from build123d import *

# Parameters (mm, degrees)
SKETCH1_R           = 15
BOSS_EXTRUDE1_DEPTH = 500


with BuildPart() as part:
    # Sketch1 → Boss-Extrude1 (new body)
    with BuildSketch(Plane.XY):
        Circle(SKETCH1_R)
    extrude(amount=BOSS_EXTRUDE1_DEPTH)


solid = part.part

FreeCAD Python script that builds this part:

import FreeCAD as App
import Part
import Sketcher
from FreeCAD import Vector
Q = App.Units.Quantity

doc = App.newDocument("Part")
params = doc.addObject("Spreadsheet::Sheet", "Params")
for row, (alias, value) in enumerate([
    ("sketch1_diameter", "30 mm"),
    ("pad1_length", "500 mm"),
], start=1):
    params.set(f"A{row}", alias)
    params.set(f"B{row}", "=" + value)
    params.setAlias(f"B{row}", alias)

body = doc.addObject("PartDesign::Body", "Body")

sketch1 = body.newObject("Sketcher::SketchObject", "Sketch")
sketch1.AttachmentSupport = (doc.getObject("XY_Plane"), [""])
sketch1.MapMode = "FlatFace"
sketch1.addGeometry(Part.Circle(Vector(0, 0, 0), Vector(0, 0, 1), 15), False)
sketch1.addConstraint(Sketcher.Constraint("Coincident", 0, 3, -1, 1))
sketch1.addConstraint(Sketcher.Constraint("Diameter", 0, Q("30 mm")))
sketch1.setExpression("Constraints[1]", "Params.sketch1_diameter")
pad1 = body.newObject("PartDesign::Pad", "Pad")
pad1.Profile = sketch1
pad1.setExpression("Length", "Params.pad1_length")

doc.recompute()
